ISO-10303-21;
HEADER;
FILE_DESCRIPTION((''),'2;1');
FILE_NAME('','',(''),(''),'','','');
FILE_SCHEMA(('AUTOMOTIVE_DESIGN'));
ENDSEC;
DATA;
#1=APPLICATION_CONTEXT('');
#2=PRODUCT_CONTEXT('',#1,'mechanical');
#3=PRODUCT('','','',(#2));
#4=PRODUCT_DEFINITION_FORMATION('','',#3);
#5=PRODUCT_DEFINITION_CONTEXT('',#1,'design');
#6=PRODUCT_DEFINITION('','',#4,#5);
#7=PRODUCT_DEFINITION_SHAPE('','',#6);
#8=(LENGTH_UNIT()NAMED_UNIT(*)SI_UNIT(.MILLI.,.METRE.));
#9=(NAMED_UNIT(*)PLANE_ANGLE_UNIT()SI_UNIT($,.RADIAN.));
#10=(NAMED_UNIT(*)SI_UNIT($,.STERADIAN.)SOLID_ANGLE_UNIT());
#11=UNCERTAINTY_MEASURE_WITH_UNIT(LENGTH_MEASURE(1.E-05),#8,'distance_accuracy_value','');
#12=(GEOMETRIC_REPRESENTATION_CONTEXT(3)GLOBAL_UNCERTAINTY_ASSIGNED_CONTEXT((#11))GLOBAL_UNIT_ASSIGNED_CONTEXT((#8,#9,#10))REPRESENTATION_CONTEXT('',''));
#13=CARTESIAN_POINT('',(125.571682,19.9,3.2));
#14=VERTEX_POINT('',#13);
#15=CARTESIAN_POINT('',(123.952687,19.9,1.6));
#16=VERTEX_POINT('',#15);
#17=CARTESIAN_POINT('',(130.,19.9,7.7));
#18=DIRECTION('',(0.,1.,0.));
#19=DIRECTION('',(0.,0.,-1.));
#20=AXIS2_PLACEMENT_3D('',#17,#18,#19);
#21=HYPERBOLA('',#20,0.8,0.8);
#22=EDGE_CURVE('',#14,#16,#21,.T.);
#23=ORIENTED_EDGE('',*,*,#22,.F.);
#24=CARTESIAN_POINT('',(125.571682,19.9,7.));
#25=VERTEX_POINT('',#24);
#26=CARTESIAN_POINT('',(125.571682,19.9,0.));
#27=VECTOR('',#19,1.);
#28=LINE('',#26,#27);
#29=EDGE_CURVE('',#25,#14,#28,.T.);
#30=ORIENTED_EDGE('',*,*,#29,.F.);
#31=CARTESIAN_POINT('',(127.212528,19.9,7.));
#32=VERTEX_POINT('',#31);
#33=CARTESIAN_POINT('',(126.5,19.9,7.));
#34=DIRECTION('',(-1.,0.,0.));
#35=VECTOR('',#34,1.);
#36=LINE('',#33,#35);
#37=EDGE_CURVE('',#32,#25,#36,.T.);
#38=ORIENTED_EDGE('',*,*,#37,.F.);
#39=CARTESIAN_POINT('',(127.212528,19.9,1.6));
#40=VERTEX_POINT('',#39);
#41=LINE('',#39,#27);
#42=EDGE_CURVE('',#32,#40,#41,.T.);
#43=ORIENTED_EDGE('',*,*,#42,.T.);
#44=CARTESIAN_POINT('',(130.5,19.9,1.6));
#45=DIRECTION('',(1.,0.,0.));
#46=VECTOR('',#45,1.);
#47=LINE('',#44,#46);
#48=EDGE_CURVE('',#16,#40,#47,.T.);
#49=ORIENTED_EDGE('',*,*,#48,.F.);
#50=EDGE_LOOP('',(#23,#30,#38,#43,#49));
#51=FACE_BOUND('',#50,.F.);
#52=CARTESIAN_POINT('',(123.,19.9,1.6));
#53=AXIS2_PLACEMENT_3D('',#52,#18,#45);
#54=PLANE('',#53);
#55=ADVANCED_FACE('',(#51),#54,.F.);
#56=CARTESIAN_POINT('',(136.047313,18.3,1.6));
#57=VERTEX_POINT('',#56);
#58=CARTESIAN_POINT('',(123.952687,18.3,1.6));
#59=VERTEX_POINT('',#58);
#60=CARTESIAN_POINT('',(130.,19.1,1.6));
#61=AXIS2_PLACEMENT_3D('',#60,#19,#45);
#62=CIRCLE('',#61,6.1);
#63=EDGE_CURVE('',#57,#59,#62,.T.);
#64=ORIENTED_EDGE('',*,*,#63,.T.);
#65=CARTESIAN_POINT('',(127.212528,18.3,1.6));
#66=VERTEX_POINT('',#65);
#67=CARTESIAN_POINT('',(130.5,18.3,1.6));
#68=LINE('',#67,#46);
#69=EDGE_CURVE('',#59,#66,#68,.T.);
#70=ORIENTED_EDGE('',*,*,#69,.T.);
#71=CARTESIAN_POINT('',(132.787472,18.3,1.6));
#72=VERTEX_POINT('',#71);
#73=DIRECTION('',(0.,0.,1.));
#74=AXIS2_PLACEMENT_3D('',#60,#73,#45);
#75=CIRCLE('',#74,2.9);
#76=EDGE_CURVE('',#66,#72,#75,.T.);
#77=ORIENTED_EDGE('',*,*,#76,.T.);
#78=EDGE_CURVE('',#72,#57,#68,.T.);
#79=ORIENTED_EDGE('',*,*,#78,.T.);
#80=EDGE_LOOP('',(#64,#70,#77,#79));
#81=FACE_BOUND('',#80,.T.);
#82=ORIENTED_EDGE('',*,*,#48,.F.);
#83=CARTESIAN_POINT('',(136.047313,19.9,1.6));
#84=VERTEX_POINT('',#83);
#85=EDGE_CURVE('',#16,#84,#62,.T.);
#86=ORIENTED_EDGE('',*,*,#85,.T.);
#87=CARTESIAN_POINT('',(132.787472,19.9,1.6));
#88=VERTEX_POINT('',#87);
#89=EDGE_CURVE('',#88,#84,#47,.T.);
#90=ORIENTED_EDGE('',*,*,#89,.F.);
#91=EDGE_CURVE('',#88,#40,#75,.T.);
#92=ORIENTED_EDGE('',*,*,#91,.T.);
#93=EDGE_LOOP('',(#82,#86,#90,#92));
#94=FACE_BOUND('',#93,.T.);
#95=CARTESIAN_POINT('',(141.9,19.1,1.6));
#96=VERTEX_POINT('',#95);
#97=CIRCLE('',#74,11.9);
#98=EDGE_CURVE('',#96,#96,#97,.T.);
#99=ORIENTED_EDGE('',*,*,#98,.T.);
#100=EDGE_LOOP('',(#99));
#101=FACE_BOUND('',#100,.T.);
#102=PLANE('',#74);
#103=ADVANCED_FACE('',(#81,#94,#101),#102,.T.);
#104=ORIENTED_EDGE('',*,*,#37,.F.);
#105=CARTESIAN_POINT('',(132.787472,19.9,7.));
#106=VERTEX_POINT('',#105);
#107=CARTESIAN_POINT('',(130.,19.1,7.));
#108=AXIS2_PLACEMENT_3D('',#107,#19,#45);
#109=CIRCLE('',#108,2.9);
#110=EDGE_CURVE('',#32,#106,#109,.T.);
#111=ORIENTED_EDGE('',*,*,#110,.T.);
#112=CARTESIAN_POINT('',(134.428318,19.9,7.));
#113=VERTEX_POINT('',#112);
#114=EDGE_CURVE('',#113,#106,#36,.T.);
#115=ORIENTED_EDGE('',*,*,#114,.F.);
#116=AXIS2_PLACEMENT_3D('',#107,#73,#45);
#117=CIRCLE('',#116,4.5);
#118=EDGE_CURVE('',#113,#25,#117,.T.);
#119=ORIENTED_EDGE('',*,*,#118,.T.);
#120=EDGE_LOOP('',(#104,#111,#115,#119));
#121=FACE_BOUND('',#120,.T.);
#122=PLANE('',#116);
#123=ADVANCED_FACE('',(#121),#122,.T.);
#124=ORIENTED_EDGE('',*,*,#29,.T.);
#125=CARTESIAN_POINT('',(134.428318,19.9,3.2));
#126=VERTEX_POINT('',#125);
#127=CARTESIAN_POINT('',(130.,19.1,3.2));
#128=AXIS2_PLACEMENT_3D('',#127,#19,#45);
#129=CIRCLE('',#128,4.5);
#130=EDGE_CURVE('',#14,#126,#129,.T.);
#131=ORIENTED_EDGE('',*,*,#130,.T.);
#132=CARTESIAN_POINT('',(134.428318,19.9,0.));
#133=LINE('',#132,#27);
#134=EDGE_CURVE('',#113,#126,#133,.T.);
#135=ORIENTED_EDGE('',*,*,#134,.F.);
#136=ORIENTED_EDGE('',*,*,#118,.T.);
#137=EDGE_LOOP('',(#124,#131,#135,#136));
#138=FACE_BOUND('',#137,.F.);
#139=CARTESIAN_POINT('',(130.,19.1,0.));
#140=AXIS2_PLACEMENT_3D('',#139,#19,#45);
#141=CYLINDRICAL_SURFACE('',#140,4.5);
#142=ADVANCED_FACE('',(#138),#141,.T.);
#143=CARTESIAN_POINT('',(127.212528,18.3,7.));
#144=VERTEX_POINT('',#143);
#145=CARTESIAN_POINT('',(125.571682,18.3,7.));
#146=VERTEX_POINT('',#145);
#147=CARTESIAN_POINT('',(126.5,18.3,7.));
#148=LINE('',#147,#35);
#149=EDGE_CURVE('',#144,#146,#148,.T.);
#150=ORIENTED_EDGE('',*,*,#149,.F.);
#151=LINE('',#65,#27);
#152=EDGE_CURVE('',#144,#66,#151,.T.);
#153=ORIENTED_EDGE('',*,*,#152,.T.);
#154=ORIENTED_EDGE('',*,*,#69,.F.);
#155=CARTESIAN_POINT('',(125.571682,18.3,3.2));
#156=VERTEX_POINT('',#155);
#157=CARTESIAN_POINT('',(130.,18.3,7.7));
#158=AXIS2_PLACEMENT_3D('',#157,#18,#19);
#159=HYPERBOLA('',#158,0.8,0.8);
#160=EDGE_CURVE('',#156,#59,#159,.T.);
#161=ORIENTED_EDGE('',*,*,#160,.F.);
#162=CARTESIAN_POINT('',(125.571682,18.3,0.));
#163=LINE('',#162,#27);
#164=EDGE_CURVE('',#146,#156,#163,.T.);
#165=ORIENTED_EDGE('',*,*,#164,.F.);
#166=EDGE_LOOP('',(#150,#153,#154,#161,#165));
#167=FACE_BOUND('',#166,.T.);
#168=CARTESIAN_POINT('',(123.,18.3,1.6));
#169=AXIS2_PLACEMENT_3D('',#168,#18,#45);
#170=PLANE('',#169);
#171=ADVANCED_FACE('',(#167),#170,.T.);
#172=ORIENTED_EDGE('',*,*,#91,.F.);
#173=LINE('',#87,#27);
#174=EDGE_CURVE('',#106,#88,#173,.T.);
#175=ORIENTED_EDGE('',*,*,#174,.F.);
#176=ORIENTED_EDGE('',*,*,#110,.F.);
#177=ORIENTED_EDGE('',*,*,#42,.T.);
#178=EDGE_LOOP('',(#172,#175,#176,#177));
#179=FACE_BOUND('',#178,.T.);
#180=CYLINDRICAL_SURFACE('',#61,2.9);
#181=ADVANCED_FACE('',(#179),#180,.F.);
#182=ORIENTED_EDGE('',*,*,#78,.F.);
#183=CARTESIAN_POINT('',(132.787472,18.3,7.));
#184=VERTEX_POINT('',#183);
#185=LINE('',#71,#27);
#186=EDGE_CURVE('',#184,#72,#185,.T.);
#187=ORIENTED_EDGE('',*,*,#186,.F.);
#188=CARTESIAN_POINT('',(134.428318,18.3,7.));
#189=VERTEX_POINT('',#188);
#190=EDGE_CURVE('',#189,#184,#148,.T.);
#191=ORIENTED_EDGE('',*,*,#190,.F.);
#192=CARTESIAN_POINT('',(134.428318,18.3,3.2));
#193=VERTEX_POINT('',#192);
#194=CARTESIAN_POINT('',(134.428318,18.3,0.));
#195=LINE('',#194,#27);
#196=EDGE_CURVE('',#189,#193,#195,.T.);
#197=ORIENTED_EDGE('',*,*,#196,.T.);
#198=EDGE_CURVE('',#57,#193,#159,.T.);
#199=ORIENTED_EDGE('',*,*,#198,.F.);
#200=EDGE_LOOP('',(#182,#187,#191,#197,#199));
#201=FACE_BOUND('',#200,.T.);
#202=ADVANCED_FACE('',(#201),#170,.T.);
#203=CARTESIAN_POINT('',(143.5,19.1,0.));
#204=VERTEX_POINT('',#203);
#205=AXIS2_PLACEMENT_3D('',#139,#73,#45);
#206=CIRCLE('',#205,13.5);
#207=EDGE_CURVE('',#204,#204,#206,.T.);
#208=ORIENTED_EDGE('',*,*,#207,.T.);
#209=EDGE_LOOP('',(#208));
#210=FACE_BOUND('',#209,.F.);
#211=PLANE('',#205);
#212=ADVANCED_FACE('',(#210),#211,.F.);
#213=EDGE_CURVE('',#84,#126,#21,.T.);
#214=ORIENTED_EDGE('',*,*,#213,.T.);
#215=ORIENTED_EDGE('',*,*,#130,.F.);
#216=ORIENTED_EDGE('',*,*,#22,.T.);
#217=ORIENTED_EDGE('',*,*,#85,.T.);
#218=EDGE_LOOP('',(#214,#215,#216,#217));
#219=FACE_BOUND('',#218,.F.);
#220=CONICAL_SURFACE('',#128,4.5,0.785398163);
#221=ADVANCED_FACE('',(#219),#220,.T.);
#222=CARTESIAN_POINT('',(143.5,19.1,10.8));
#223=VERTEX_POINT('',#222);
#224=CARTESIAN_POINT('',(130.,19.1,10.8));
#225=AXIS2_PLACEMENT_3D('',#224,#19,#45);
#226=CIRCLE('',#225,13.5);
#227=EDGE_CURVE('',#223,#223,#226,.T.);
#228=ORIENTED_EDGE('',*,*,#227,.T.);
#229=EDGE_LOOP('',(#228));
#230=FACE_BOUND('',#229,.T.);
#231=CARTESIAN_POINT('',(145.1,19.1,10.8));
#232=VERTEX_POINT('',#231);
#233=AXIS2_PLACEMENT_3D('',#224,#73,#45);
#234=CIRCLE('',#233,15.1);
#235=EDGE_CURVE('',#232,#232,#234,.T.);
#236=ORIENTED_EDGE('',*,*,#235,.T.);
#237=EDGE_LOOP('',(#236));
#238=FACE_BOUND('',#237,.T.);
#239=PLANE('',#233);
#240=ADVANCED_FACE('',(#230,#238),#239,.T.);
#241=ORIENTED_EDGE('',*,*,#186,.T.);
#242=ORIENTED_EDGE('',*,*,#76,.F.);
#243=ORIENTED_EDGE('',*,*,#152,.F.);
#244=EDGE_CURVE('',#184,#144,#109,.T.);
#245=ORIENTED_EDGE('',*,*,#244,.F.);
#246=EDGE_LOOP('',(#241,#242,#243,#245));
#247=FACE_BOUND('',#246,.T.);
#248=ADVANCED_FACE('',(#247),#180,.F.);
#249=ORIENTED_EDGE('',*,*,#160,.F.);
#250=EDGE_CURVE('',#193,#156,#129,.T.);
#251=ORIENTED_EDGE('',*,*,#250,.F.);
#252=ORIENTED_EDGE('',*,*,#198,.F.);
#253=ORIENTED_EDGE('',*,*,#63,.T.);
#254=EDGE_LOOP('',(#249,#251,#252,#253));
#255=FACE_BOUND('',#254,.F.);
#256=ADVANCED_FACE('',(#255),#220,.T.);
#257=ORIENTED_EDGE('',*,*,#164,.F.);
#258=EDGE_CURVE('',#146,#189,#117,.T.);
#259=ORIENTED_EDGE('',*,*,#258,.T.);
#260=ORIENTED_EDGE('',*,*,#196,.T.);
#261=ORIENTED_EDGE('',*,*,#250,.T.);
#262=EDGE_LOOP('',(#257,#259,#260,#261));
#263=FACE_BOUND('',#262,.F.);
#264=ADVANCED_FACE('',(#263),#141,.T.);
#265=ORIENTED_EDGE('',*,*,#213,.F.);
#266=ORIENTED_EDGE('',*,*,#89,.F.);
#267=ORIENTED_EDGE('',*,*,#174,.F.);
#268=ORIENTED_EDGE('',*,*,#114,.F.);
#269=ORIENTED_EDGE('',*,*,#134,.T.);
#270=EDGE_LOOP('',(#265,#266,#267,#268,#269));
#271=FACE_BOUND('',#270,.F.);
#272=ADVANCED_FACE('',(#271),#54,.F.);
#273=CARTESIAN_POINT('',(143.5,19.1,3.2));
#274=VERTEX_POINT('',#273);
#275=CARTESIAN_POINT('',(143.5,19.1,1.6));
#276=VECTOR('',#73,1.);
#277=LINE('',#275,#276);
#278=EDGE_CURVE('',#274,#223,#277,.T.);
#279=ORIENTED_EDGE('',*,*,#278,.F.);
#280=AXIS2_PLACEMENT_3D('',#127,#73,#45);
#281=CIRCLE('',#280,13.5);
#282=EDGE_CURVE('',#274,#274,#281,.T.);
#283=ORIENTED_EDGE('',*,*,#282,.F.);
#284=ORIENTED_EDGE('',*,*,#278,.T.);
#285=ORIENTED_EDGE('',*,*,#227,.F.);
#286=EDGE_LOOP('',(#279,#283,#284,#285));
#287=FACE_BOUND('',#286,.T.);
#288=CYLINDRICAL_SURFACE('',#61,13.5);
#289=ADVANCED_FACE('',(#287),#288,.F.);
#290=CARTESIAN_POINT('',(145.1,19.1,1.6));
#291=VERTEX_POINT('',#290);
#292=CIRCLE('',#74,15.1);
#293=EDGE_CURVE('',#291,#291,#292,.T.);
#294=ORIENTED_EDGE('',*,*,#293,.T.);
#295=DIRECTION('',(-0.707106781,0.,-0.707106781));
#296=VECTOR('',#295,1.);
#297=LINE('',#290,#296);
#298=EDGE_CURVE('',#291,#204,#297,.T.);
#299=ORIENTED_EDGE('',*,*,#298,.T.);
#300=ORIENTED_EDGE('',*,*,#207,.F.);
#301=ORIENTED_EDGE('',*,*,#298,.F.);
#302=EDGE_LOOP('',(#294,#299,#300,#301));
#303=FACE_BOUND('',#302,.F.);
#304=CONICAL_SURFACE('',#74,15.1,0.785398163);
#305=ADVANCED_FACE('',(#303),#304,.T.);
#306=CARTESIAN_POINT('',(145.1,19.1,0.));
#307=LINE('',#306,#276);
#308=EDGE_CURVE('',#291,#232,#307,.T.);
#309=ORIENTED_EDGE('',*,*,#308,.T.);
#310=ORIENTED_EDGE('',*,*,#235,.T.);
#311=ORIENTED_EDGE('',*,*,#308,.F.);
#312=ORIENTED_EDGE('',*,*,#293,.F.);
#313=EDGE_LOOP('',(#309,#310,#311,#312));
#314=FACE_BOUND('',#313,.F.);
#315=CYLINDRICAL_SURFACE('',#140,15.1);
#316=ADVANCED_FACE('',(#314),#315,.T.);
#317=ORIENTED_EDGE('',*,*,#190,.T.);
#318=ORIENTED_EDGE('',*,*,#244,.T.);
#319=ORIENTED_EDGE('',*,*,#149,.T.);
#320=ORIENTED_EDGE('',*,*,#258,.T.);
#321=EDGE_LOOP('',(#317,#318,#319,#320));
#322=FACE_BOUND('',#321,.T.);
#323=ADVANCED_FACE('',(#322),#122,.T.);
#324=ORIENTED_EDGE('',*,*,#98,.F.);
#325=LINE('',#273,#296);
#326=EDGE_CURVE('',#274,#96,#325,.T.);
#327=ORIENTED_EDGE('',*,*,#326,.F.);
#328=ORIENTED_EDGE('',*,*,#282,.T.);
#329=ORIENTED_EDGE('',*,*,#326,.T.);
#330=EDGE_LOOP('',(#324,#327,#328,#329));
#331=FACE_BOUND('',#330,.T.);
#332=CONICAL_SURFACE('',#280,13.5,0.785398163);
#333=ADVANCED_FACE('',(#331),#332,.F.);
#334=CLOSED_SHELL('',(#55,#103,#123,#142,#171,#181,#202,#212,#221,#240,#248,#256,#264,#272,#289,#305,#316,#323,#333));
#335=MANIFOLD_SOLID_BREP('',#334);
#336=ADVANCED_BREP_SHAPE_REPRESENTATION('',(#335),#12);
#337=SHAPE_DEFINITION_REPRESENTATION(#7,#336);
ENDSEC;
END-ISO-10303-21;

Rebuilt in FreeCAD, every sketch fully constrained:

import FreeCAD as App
import Part
import Sketcher

V = App.Vector
Q = App.Units.Quantity


def edges_at(feature, points):
    """Names of the edges that pass closest to the given points."""
    edges = feature.Shape.Edges
    near = lambda p: min(range(len(edges)), key=lambda i: edges[i].distToShape(Part.Vertex(*p))[0])
    return sorted({f"Edge{near(p) + 1}" for p in points})


def add_polygon(sketch, points):
    """Adds a closed chain of lines whose ends are joined by coincident constraints."""
    first, n = sketch.GeometryCount, len(points)
    for a, b in zip(points, points[1:] + points[:1]):
        sketch.addGeometry(Part.LineSegment(App.Vector(*a, 0), App.Vector(*b, 0)), False)
    for i in range(n):
        sketch.addConstraint(Sketcher.Constraint("Coincident", first + i, 2, first + (i + 1) % n, 1))

doc = App.newDocument("Part")
body = doc.addObject("PartDesign::Body", "Body")

sketch1 = body.newObject("Sketcher::SketchObject", "Sketch")
sketch1.AttachmentSupport = (doc.getObject("XY_Plane"), [""])
sketch1.MapMode = "FlatFace"
sketch1.AttachmentOffset = App.Placement(V(0, 0, 1.6), App.Rotation())
add_polygon(sketch1, [(123, 19.9), (123, 18.3), (138, 18.3), (138, 19.9)])
sketch1.addConstraint([
    Sketcher.Constraint("Vertical", 0),
    Sketcher.Constraint("Horizontal", 1),
    Sketcher.Constraint("Vertical", 2),
    Sketcher.Constraint("Horizontal", 3),
    Sketcher.Constraint("DistanceX", 1, 1, 1, 2, Q("15 mm")),
    Sketcher.Constraint("DistanceY", 0, 2, 0, 1, Q("1.6 mm")),
    Sketcher.Constraint("DistanceX", -1, 1, 0, 2, Q("123 mm")),
    Sketcher.Constraint("DistanceY", -1, 1, 0, 2, Q("18.3 mm")),
])
pad1 = body.newObject("PartDesign::Pad", "Pad")
pad1.Profile = sketch1
pad1.Length = 10.5
body2 = doc.addObject("PartDesign::Body", "Body001")

sketch2 = body2.newObject("Sketcher::SketchObject", "Sketch001")
sketch2.AttachmentSupport = (doc.getObject("XY_Plane001"), [""])
sketch2.MapMode = "FlatFace"
sketch2.AttachmentOffset = App.Placement(V(0, 0, 1.6), App.Rotation())
sketch2.addGeometry(Part.Circle(V(130, 19.1, 0), V(0, 0, 1), 2.9), False)
sketch2.addConstraint([
    Sketcher.Constraint("Diameter", 0, Q("5.8 mm")),
    Sketcher.Constraint("DistanceX", -1, 1, 0, 3, Q("130 mm")),
    Sketcher.Constraint("DistanceY", -1, 1, 0, 3, Q("19.1 mm")),
])
pad2 = body2.newObject("PartDesign::Pad", "Pad001")
pad2.Profile = sketch2
pad2.Length = 10.5
body3 = doc.addObject("PartDesign::Body", "Body002")

sketch3 = body3.newObject("Sketcher::SketchObject", "Sketch002")
sketch3.AttachmentSupport = (doc.getObject("XY_Plane002"), [""])
sketch3.MapMode = "FlatFace"
sketch3.addGeometry(Part.Circle(V(130, 19.1, 0), V(0, 0, 1), 4.5), False)
sketch3.addConstraint([
    Sketcher.Constraint("Diameter", 0, Q("9 mm")),
    Sketcher.Constraint("DistanceX", -1, 1, 0, 3, Q("130 mm")),
    Sketcher.Constraint("DistanceY", -1, 1, 0, 3, Q("19.1 mm")),
])
pad3 = body3.newObject("PartDesign::Pad", "Pad002")
pad3.Profile = sketch3
pad3.Length = 7
doc.recompute()

boolean = body3.newObject("PartDesign::Boolean", "Boolean")
boolean.Type = "Cut"
boolean.addObjects([body2])
body4 = doc.addObject("PartDesign::Body", "Body003")

sketch4 = body4.newObject("Sketcher::SketchObject", "Sketch003")
sketch4.AttachmentSupport = (doc.getObject("XY_Plane003"), [""])
sketch4.MapMode = "FlatFace"
sketch4.AttachmentOffset = App.Placement(V(0, 0, 1.6), App.Rotation())
sketch4.addGeometry(Part.Circle(V(130, 19.1, 0), V(0, 0, 1), 13.5), False)
sketch4.addConstraint([
    Sketcher.Constraint("Diameter", 0, Q("27 mm")),
    Sketcher.Constraint("DistanceX", -1, 1, 0, 3, Q("130 mm")),
    Sketcher.Constraint("DistanceY", -1, 1, 0, 3, Q("19.1 mm")),
])
pad4 = body4.newObject("PartDesign::Pad", "Pad003")
pad4.Profile = sketch4
pad4.Length = 10.8
body5 = doc.addObject("PartDesign::Body", "Body004")

sketch5 = body5.newObject("Sketcher::SketchObject", "Sketch004")
sketch5.AttachmentSupport = (doc.getObject("XY_Plane004"), [""])
sketch5.MapMode = "FlatFace"
sketch5.addGeometry(Part.Circle(V(130, 19.1, 0), V(0, 0, 1), 15.1), False)
sketch5.addConstraint([
    Sketcher.Constraint("Diameter", 0, Q("30.2 mm")),
    Sketcher.Constraint("DistanceX", -1, 1, 0, 3, Q("130 mm")),
    Sketcher.Constraint("DistanceY", -1, 1, 0, 3, Q("19.1 mm")),
])
pad5 = body5.newObject("PartDesign::Pad", "Pad004")
pad5.Profile = sketch5
pad5.Length = 10.8
doc.recompute()

boolean2 = body5.newObject("PartDesign::Boolean", "Boolean001")
boolean2.Type = "Cut"
boolean2.addObjects([body4])
doc.recompute()

chamfer = body5.newObject("PartDesign::Chamfer", "Chamfer")
chamfer.Base = (boolean2, edges_at(boolean2, [(116.5, 19.1, 1.6)]))
chamfer.Size = 1.6
doc.recompute()

chamfer2 = body5.newObject("PartDesign::Chamfer", "Chamfer001")
chamfer2.Base = (chamfer, edges_at(chamfer, [(114.9, 19.1, 0)]))
chamfer2.Size = 1.6
doc.recompute()

boolean3 = body5.newObject("PartDesign::Boolean", "Boolean002")
boolean3.Type = "Fuse"
boolean3.addObjects([body3])
doc.recompute()

chamfer3 = body5.newObject("PartDesign::Chamfer", "Chamfer002")
chamfer3.Base = (boolean3, edges_at(boolean3, [(125.5, 19.1, 1.6)]))
chamfer3.Size = 1.6
doc.recompute()

boolean4 = body5.newObject("PartDesign::Boolean", "Boolean003")
boolean4.Type = "Cut"
boolean4.addObjects([body])

doc.recompute()
